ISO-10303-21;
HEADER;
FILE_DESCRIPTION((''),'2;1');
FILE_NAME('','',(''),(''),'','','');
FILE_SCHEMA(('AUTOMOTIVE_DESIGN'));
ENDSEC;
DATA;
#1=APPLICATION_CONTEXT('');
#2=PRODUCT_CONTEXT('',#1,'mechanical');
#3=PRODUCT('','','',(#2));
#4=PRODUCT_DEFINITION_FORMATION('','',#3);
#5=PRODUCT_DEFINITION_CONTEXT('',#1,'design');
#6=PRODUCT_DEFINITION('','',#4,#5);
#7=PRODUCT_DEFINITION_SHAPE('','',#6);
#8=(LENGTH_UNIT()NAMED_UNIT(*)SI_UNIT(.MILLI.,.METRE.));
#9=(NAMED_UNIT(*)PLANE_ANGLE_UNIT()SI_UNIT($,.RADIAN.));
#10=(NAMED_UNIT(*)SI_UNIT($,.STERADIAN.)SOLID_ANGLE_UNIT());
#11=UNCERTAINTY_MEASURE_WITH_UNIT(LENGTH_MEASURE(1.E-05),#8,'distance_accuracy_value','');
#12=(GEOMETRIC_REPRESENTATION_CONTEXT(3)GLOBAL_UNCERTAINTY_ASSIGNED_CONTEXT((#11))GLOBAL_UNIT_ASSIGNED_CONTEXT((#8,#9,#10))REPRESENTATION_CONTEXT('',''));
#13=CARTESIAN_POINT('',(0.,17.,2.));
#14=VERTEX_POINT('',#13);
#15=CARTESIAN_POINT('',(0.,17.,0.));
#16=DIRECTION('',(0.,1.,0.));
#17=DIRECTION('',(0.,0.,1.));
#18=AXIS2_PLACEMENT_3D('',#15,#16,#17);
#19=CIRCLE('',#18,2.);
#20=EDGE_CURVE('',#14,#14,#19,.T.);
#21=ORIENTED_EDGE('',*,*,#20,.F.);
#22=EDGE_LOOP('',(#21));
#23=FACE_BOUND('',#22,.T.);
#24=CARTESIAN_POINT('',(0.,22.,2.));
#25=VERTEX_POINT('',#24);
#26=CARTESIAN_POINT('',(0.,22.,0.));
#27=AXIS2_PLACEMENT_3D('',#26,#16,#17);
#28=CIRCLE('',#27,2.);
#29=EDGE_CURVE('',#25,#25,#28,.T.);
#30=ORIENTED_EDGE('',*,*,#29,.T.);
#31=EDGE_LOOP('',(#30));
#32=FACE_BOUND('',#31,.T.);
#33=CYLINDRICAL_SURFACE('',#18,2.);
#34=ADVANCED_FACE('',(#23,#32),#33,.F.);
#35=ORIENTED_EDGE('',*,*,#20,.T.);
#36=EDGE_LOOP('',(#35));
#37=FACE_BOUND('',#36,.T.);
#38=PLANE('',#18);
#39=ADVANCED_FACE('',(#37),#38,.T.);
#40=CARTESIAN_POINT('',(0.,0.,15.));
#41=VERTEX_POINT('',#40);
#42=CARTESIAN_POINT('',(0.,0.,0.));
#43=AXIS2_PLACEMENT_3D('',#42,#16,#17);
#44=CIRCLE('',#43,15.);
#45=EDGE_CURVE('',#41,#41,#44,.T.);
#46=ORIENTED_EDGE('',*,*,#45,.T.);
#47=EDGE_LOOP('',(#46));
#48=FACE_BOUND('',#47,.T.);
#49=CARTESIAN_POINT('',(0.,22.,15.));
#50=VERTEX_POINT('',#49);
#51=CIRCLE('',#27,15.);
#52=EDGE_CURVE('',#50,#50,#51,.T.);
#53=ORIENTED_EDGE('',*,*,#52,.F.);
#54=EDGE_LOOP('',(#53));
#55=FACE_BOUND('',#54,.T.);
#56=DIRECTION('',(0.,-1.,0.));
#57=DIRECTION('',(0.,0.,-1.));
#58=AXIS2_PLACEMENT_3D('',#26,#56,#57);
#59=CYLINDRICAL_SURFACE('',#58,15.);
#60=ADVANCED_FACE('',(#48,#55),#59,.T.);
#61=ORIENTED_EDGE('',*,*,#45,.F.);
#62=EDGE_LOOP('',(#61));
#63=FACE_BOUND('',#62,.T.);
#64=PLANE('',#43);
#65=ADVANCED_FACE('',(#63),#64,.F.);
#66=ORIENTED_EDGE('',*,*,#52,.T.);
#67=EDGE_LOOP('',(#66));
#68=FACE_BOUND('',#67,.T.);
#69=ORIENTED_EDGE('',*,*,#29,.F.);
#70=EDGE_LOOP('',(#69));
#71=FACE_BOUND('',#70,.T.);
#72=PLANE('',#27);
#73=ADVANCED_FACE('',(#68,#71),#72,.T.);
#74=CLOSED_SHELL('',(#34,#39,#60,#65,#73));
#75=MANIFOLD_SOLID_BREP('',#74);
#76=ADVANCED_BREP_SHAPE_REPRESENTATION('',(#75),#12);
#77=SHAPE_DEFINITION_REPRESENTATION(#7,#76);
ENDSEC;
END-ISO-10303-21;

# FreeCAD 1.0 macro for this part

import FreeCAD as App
import Part
import Sketcher
Q = App.Units.Quantity

doc = App.newDocument("Part")
body = doc.addObject("PartDesign::Body", "Body")

# Sketch on XZ plane
sketch1 = body.newObject("Sketcher::SketchObject", "Sketch")
sketch1.AttachmentSupport = (doc.getObject("XZ_Plane"), [""])
sketch1.MapMode = "FlatFace"
sketch1.addGeometry(Part.Circle(App.Vector(0, 0, 0), App.Vector(0, 0, 1), 15), False)
sketch1.addConstraint([
    Sketcher.Constraint("Coincident", 0, 3, -1, 1),
    Sketcher.Constraint("Diameter", 0, Q("30 mm")),
])
pad1 = body.newObject("PartDesign::Pad", "Pad")
pad1.Profile = sketch1
pad1.Length = 22
pad1.Reversed = True

# Sketch on XZ plane
sketch2 = body.newObject("Sketcher::SketchObject", "Sketch001")
sketch2.AttachmentSupport = (doc.getObject("XZ_Plane"), [""])
sketch2.MapMode = "FlatFace"
sketch2.AttachmentOffset = App.Placement(App.Vector(0, 0, -22), App.Rotation())
sketch2.addGeometry(Part.Circle(App.Vector(0, 0, 0), App.Vector(0, 0, 1), 2), False)
sketch2.addConstraint([
    Sketcher.Constraint("Coincident", 0, 3, -1, 1),
    Sketcher.Constraint("Diameter", 0, Q("4 mm")),
])
pocket1 = body.newObject("PartDesign::Pocket", "Pocket")
pocket1.Profile = sketch2
pocket1.Length = 5
pocket1.Reversed = True

doc.recompute()
